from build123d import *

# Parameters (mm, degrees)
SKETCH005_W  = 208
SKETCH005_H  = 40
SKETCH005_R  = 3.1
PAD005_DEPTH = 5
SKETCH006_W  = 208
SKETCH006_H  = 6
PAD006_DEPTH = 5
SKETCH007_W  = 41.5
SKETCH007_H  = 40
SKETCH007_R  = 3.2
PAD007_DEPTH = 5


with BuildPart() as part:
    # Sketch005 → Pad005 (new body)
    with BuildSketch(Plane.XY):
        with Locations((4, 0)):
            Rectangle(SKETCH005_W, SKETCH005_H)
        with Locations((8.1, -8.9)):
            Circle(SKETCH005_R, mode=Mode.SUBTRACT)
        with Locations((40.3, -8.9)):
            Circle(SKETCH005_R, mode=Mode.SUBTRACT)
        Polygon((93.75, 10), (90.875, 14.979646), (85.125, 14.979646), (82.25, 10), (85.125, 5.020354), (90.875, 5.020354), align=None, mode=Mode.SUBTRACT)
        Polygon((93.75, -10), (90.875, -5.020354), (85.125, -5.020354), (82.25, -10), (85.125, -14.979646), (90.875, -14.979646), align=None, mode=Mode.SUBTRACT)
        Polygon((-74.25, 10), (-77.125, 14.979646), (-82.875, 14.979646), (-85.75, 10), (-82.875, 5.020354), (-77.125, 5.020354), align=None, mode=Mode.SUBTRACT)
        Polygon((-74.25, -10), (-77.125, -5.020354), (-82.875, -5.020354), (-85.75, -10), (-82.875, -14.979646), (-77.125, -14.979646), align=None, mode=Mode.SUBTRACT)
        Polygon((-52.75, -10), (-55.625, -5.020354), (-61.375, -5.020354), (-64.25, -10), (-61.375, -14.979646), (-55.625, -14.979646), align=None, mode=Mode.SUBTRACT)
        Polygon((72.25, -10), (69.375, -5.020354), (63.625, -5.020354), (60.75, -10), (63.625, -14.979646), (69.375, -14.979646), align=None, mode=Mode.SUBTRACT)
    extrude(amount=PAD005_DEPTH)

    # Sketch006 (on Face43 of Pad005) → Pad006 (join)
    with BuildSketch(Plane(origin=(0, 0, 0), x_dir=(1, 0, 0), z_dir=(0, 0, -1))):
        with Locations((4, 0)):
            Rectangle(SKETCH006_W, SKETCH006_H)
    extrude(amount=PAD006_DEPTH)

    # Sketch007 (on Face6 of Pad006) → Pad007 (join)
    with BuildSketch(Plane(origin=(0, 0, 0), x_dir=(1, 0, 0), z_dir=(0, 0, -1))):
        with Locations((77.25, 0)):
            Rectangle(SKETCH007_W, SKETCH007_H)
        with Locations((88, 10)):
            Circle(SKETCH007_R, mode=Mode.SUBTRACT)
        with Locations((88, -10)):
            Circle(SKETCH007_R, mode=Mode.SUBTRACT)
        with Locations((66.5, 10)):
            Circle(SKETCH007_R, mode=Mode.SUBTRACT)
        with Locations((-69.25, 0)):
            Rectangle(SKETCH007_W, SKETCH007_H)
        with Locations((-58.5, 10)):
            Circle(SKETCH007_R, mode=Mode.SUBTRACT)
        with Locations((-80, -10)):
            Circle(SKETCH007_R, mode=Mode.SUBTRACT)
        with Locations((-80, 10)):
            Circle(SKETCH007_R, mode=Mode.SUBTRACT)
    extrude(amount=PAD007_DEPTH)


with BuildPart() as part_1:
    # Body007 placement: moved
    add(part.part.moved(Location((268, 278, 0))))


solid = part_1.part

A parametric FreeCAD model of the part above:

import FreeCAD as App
import Part
import Sketcher
Q = App.Units.Quantity


def add_polygon(sketch, points):
    """Adds a closed chain of lines whose ends are joined by coincident constraints."""
    first, n = sketch.GeometryCount, len(points)
    for a, b in zip(points, points[1:] + points[:1]):
        sketch.addGeometry(Part.LineSegment(App.Vector(*a, 0), App.Vector(*b, 0)), False)
    for i in range(n):
        sketch.addConstraint(Sketcher.Constraint("Coincident", first + i, 2, first + (i + 1) % n, 1))

doc = App.newDocument("Part")
params = doc.addObject("Spreadsheet::Sheet", "Params")
for row, (alias, value) in enumerate([
    ("sketch1_diameter", "6.2 mm"),
    ("sketch1_width", "208 mm"),
    ("sketch1_height", "40 mm"),
    ("sketch1_width2", "5.75 mm"),
    ("pad1_length", "5 mm"),
    ("sketch2_width", "208 mm"),
    ("sketch2_height", "6 mm"),
    ("pad2_length", "5 mm"),
    ("sketch3_diameter", "6.4 mm"),
    ("sketch3_height", "40 mm"),
    ("sketch3_width", "41.5 mm"),
    ("pad3_length", "5 mm"),
], start=1):
    params.set(f"A{row}", alias)
    params.set(f"B{row}", "=" + value)
    params.setAlias(f"B{row}", alias)

body = doc.addObject("PartDesign::Body", "Body")

# Sketch on XY plane
sketch1 = doc.addObject("Sketcher::SketchObject", "Sketch")
body.addObject(sketch1)
sketch1.AttachmentSupport = (doc.XY_Plane, [""])
sketch1.MapMode = "FlatFace"
add_polygon(sketch1, [(-100, 20), (-100, -20), (108, -20), (108, 20)])  # lines 0-3
add_polygon(sketch1, [(-77.1, -5), (-74.2, -10), (-77.1, -15), (-82.9, -15), (-85.8, -10), (-82.9, -5)])  # lines 4-9
add_polygon(sketch1, [(-55.6, -5), (-52.8, -10), (-55.6, -15), (-61.4, -15), (-64.2, -10), (-61.4, -5)])  # lines 10-15
sketch1.addGeometry(Part.Circle(App.Vector(8.1, -8.9, 0), App.Vector(0, 0, 1), 3.1), False)  # 16
sketch1.addGeometry(Part.Circle(App.Vector(40.3, -8.9, 0), App.Vector(0, 0, 1), 3.1), False)  # 17
add_polygon(sketch1, [(69.4, -5), (72.2, -10), (69.4, -15), (63.6, -15), (60.8, -10), (63.6, -5)])  # lines 18-23
add_polygon(sketch1, [(90.9, -5), (93.8, -10), (90.9, -15), (85.1, -15), (82.2, -10), (85.1, -5)])  # lines 24-29
add_polygon(sketch1, [(-77.1, 15), (-74.2, 10), (-77.1, 5), (-82.9, 5), (-85.8, 10), (-82.9, 15)])  # lines 30-35
add_polygon(sketch1, [(90.9, 15), (93.8, 10), (90.9, 5), (85.1, 5), (82.2, 10), (85.1, 15)])  # lines 36-41
sketch1.addConstraint([
    Sketcher.Constraint("Vertical", 0),
    Sketcher.Constraint("Horizontal", 1),
    Sketcher.Constraint("Vertical", 2),
    Sketcher.Constraint("Horizontal", 3),
    Sketcher.Constraint("Horizontal", 6),
    Sketcher.Constraint("Horizontal", 9),
    Sketcher.Constraint("Horizontal", 12),
    Sketcher.Constraint("Horizontal", 15),
    Sketcher.Constraint("Horizontal", 20),
    Sketcher.Constraint("Horizontal", 23),
    Sketcher.Constraint("Horizontal", 26),
    Sketcher.Constraint("Horizontal", 29),
    Sketcher.Constraint("Horizontal", 32),
    Sketcher.Constraint("Horizontal", 35),
    Sketcher.Constraint("Horizontal", 38),
    Sketcher.Constraint("Horizontal", 41),
    Sketcher.Constraint("Equal", 16, 17),
    Sketcher.Constraint("Symmetric", 4, 2, 30, 2, -1),
    Sketcher.Constraint("Symmetric", 9, 2, 31, 2, -1),
    Sketcher.Constraint("Symmetric", 7, 2, 33, 2, -1),
    Sketcher.Constraint("Symmetric", 6, 2, 34, 2, -1),
    Sketcher.Constraint("Symmetric", 24, 2, 36, 2, -1),
    Sketcher.Constraint("Symmetric", 29, 2, 37, 2, -1),
    Sketcher.Constraint("Symmetric", 27, 2, 39, 2, -1),
    Sketcher.Constraint("Symmetric", 26, 2, 40, 2, -1),
    Sketcher.Constraint("Parallel", 4, 7),
    Sketcher.Constraint("Parallel", 5, 8),
    Sketcher.Constraint("Parallel", 7, 10),
    Sketcher.Constraint("Parallel", 8, 11),
    Sketcher.Constraint("Parallel", 10, 13),
    Sketcher.Constraint("Parallel", 11, 14),
    Sketcher.Constraint("Parallel", 13, 18),
    Sketcher.Constraint("Parallel", 14, 19),
    Sketcher.Constraint("Parallel", 18, 21),
    Sketcher.Constraint("Parallel", 19, 22),
    Sketcher.Constraint("Parallel", 21, 24),
    Sketcher.Constraint("Parallel", 22, 25),
    Sketcher.Constraint("Parallel", 24, 27),
    Sketcher.Constraint("Parallel", 25, 28),
    Sketcher.Constraint("Parallel", 27, 30),
    Sketcher.Constraint("Parallel", 28, 31),
    Sketcher.Constraint("Parallel", 30, 33),
    Sketcher.Constraint("Parallel", 33, 36),
    Sketcher.Constraint("Parallel", 36, 39),
    Sketcher.Constraint("Horizontal", 16, 3, 17, 3),
    Sketcher.Constraint("Horizontal", 4, 2, 7, 2),
    Sketcher.Constraint("Horizontal", 7, 2, 10, 2),
    Sketcher.Constraint("Horizontal", 6, 2, 11, 2),
    Sketcher.Constraint("Horizontal", 10, 2, 13, 2),
    Sketcher.Constraint("Horizontal", 9, 2, 14, 2),
    Sketcher.Constraint("Horizontal", 13, 2, 18, 2),
    Sketcher.Constraint("Horizontal", 12, 2, 19, 2),
    Sketcher.Constraint("Horizontal", 18, 2, 21, 2),
    Sketcher.Constraint("Horizontal", 15, 2, 22, 2),
    Sketcher.Constraint("Horizontal", 21, 2, 24, 2),
    Sketcher.Constraint("Horizontal", 20, 2, 25, 2),
    Sketcher.Constraint("Horizontal", 24, 2, 27, 2),
    Sketcher.Constraint("Horizontal", 23, 2, 28, 2),
    Sketcher.Constraint("Vertical", 6, 2, 8, 2),
    Sketcher.Constraint("Equal", 9, 12),
    Sketcher.Constraint("Equal", 15, 20),
    Sketcher.Constraint("Equal", 23, 26),
    Sketcher.Constraint("Diameter", 16, Q("6.2 mm")),
    Sketcher.Constraint("DistanceX", 1, 1, 1, 2, Q("208 mm")),
    Sketcher.Constraint("DistanceY", 0, 2, 0, 1, Q("40 mm")),
    Sketcher.Constraint("Angle", 4, Q("-60 deg")),
    Sketcher.Constraint("DistanceX", 0, 2, -1, 1, Q("100 mm")),
    Sketcher.Constraint("DistanceY", 0, 2, -1, 1, Q("20 mm")),
    Sketcher.Constraint("DistanceY", 4, 2, -1, 1, Q("10 mm")),
    Sketcher.Constraint("DistanceX", 4, 2, 13, 2, Q("10 mm")),
    Sketcher.Constraint("DistanceX", 10, 2, 18, 2, Q("125 mm")),
    Sketcher.Constraint("DistanceX", 18, 2, 27, 2, Q("10 mm")),
    Sketcher.Constraint("DistanceX", 6, 2, 6, 1, Q("5.75 mm")),
    Sketcher.Constraint("DistanceX", -1, 1, 16, 3, Q("8.1 mm")),
    Sketcher.Constraint("DistanceY", 16, 3, -1, 1, Q("8.9 mm")),
    Sketcher.Constraint("DistanceX", -1, 1, 17, 3, Q("40.3 mm")),
    Sketcher.Constraint("DistanceX", 7, 2, 4, 2, Q("11.5 mm")),
    Sketcher.Constraint("DistanceX", 4, 2, -1, 1, Q("74.25 mm")),
])
sketch1.setExpression("Constraints[102]", "Params.sketch1_diameter")
sketch1.setExpression("Constraints[103]", "Params.sketch1_width")
sketch1.setExpression("Constraints[104]", "Params.sketch1_height")
sketch1.setExpression("Constraints[112]", "Params.sketch1_width2")
pad1 = doc.addObject("PartDesign::Pad", "Pad")
body.addObject(pad1)
pad1.Profile = sketch1
pad1.setExpression("Length", "Params.pad1_length")

# Sketch on XY plane
sketch2 = doc.addObject("Sketcher::SketchObject", "Sketch001")
body.addObject(sketch2)
sketch2.AttachmentSupport = (doc.XY_Plane, [""])
sketch2.MapMode = "FlatFace"
add_polygon(sketch2, [(-100, -3), (-100, 3), (108, 3), (108, -3)])  # lines 0-3
sketch2.addConstraint([
    Sketcher.Constraint("Vertical", 0),
    Sketcher.Constraint("Horizontal", 1),
    Sketcher.Constraint("Vertical", 2),
    Sketcher.Constraint("Horizontal", 3),
    Sketcher.Constraint("DistanceX", 1, 1, 1, 2, Q("208 mm")),
    Sketcher.Constraint("DistanceY", 0, 1, 0, 2, Q("6 mm")),
    Sketcher.Constraint("DistanceX", 0, 2, -1, 1, Q("100 mm")),
    Sketcher.Constraint("DistanceY", -1, 1, 0, 2, Q("3 mm")),
])
sketch2.setExpression("Constraints[8]", "Params.sketch2_width")
sketch2.setExpression("Constraints[9]", "Params.sketch2_height")
pad2 = doc.addObject("PartDesign::Pad", "Pad001")
body.addObject(pad2)
pad2.Profile = sketch2
pad2.setExpression("Length", "Params.pad2_length")
pad2.Reversed = True

# Sketch on XY plane
sketch3 = doc.addObject("Sketcher::SketchObject", "Sketch002")
body.addObject(sketch3)
sketch3.AttachmentSupport = (doc.XY_Plane, [""])
sketch3.MapMode = "FlatFace"
add_polygon(sketch3, [(56.5, -20), (56.5, 20), (98, 20), (98, -20)])  # lines 0-3
sketch3.addGeometry(Part.Circle(App.Vector(88, 10, 0), App.Vector(0, 0, 1), 3.2), False)  # 4
sketch3.addGeometry(Part.Circle(App.Vector(66.5, -10, 0), App.Vector(0, 0, 1), 3.2), False)  # 5
sketch3.addGeometry(Part.Circle(App.Vector(88, -10, 0), App.Vector(0, 0, 1), 3.2), False)  # 6
add_polygon(sketch3, [(-90, -20), (-90, 20), (-48.5, 20), (-48.5, -20)])  # lines 7-10
sketch3.addGeometry(Part.Circle(App.Vector(-80, 10, 0), App.Vector(0, 0, 1), 3.2), False)  # 11
sketch3.addGeometry(Part.Circle(App.Vector(-80, -10, 0), App.Vector(0, 0, 1), 3.2), False)  # 12
sketch3.addGeometry(Part.Circle(App.Vector(-58.5, -10, 0), App.Vector(0, 0, 1), 3.2), False)  # 13
sketch3.addConstraint([
    Sketcher.Constraint("Vertical", 0),
    Sketcher.Constraint("Horizontal", 1),
    Sketcher.Constraint("Vertical", 2),
    Sketcher.Constraint("Horizontal", 3),
    Sketcher.Constraint("Vertical", 7),
    Sketcher.Constraint("Horizontal", 8),
    Sketcher.Constraint("Vertical", 9),
    Sketcher.Constraint("Horizontal", 10),
    Sketcher.Constraint("Equal", 4, 5),
    Sketcher.Constraint("Equal", 5, 6),
    Sketcher.Constraint("Equal", 6, 11),
    Sketcher.Constraint("Equal", 11, 12),
    Sketcher.Constraint("Equal", 12, 13),
    Sketcher.Constraint("Symmetric", 4, 3, 6, 3, -1),
    Sketcher.Constraint("Symmetric", 11, 3, 12, 3, -1),
    Sketcher.Constraint("Horizontal", 5, 3, 6, 3),
    Sketcher.Constraint("Horizontal", 4, 3, 11, 3),
    Sketcher.Constraint("Horizontal", 12, 3, 13, 3),
    Sketcher.Constraint("Horizontal", 1, 2, 7, 2),
    Sketcher.Constraint("Horizontal", 3, 2, 9, 2),
    Sketcher.Constraint("Equal", 3, 8),
    Sketcher.Constraint("Diameter", 4, Q("6.4 mm")),
    Sketcher.Constraint("DistanceY", 0, 1, 0, 2, Q("40 mm")),
    Sketcher.Constraint("DistanceX", 1, 1, 1, 2, Q("41.5 mm")),
    Sketcher.Constraint("DistanceX", -1, 1, 4, 3, Q("88 mm")),
    Sketcher.Constraint("DistanceY", -1, 1, 4, 3, Q("10 mm")),
    Sketcher.Constraint("DistanceX", 11, 3, -1, 1, Q("80 mm")),
    Sketcher.Constraint("DistanceY", -1, 1, 0, 2, Q("20 mm")),
    Sketcher.Constraint("DistanceX", -1, 1, 1, 2, Q("98 mm")),
    Sketcher.Constraint("DistanceX", 7, 2, -1, 1, Q("90 mm")),
    Sketcher.Constraint("DistanceX", 13, 3, 5, 3, Q("125 mm")),
    Sketcher.Constraint("DistanceX", 0, 2, 5, 3, Q("10 mm")),
])
sketch3.setExpression("Constraints[29]", "Params.sketch3_diameter")
sketch3.setExpression("Constraints[30]", "Params.sketch3_height")
sketch3.setExpression("Constraints[31]", "Params.sketch3_width")
pad3 = doc.addObject("PartDesign::Pad", "Pad002")
body.addObject(pad3)
pad3.Profile = sketch3
pad3.setExpression("Length", "Params.pad3_length")
pad3.Reversed = True
body2 = doc.addObject("PartDesign::Body", "Body001")
doc.recompute()

body.Placement = App.Placement(App.Vector(268, 278, 0), App.Rotation(App.Vector(0, 0, 1), 0))
boolean = doc.addObject("PartDesign::Boolean", "Boolean")
body2.addObject(boolean)
boolean.Type = "Fuse"
boolean.addObjects([body])

doc.recompute()
